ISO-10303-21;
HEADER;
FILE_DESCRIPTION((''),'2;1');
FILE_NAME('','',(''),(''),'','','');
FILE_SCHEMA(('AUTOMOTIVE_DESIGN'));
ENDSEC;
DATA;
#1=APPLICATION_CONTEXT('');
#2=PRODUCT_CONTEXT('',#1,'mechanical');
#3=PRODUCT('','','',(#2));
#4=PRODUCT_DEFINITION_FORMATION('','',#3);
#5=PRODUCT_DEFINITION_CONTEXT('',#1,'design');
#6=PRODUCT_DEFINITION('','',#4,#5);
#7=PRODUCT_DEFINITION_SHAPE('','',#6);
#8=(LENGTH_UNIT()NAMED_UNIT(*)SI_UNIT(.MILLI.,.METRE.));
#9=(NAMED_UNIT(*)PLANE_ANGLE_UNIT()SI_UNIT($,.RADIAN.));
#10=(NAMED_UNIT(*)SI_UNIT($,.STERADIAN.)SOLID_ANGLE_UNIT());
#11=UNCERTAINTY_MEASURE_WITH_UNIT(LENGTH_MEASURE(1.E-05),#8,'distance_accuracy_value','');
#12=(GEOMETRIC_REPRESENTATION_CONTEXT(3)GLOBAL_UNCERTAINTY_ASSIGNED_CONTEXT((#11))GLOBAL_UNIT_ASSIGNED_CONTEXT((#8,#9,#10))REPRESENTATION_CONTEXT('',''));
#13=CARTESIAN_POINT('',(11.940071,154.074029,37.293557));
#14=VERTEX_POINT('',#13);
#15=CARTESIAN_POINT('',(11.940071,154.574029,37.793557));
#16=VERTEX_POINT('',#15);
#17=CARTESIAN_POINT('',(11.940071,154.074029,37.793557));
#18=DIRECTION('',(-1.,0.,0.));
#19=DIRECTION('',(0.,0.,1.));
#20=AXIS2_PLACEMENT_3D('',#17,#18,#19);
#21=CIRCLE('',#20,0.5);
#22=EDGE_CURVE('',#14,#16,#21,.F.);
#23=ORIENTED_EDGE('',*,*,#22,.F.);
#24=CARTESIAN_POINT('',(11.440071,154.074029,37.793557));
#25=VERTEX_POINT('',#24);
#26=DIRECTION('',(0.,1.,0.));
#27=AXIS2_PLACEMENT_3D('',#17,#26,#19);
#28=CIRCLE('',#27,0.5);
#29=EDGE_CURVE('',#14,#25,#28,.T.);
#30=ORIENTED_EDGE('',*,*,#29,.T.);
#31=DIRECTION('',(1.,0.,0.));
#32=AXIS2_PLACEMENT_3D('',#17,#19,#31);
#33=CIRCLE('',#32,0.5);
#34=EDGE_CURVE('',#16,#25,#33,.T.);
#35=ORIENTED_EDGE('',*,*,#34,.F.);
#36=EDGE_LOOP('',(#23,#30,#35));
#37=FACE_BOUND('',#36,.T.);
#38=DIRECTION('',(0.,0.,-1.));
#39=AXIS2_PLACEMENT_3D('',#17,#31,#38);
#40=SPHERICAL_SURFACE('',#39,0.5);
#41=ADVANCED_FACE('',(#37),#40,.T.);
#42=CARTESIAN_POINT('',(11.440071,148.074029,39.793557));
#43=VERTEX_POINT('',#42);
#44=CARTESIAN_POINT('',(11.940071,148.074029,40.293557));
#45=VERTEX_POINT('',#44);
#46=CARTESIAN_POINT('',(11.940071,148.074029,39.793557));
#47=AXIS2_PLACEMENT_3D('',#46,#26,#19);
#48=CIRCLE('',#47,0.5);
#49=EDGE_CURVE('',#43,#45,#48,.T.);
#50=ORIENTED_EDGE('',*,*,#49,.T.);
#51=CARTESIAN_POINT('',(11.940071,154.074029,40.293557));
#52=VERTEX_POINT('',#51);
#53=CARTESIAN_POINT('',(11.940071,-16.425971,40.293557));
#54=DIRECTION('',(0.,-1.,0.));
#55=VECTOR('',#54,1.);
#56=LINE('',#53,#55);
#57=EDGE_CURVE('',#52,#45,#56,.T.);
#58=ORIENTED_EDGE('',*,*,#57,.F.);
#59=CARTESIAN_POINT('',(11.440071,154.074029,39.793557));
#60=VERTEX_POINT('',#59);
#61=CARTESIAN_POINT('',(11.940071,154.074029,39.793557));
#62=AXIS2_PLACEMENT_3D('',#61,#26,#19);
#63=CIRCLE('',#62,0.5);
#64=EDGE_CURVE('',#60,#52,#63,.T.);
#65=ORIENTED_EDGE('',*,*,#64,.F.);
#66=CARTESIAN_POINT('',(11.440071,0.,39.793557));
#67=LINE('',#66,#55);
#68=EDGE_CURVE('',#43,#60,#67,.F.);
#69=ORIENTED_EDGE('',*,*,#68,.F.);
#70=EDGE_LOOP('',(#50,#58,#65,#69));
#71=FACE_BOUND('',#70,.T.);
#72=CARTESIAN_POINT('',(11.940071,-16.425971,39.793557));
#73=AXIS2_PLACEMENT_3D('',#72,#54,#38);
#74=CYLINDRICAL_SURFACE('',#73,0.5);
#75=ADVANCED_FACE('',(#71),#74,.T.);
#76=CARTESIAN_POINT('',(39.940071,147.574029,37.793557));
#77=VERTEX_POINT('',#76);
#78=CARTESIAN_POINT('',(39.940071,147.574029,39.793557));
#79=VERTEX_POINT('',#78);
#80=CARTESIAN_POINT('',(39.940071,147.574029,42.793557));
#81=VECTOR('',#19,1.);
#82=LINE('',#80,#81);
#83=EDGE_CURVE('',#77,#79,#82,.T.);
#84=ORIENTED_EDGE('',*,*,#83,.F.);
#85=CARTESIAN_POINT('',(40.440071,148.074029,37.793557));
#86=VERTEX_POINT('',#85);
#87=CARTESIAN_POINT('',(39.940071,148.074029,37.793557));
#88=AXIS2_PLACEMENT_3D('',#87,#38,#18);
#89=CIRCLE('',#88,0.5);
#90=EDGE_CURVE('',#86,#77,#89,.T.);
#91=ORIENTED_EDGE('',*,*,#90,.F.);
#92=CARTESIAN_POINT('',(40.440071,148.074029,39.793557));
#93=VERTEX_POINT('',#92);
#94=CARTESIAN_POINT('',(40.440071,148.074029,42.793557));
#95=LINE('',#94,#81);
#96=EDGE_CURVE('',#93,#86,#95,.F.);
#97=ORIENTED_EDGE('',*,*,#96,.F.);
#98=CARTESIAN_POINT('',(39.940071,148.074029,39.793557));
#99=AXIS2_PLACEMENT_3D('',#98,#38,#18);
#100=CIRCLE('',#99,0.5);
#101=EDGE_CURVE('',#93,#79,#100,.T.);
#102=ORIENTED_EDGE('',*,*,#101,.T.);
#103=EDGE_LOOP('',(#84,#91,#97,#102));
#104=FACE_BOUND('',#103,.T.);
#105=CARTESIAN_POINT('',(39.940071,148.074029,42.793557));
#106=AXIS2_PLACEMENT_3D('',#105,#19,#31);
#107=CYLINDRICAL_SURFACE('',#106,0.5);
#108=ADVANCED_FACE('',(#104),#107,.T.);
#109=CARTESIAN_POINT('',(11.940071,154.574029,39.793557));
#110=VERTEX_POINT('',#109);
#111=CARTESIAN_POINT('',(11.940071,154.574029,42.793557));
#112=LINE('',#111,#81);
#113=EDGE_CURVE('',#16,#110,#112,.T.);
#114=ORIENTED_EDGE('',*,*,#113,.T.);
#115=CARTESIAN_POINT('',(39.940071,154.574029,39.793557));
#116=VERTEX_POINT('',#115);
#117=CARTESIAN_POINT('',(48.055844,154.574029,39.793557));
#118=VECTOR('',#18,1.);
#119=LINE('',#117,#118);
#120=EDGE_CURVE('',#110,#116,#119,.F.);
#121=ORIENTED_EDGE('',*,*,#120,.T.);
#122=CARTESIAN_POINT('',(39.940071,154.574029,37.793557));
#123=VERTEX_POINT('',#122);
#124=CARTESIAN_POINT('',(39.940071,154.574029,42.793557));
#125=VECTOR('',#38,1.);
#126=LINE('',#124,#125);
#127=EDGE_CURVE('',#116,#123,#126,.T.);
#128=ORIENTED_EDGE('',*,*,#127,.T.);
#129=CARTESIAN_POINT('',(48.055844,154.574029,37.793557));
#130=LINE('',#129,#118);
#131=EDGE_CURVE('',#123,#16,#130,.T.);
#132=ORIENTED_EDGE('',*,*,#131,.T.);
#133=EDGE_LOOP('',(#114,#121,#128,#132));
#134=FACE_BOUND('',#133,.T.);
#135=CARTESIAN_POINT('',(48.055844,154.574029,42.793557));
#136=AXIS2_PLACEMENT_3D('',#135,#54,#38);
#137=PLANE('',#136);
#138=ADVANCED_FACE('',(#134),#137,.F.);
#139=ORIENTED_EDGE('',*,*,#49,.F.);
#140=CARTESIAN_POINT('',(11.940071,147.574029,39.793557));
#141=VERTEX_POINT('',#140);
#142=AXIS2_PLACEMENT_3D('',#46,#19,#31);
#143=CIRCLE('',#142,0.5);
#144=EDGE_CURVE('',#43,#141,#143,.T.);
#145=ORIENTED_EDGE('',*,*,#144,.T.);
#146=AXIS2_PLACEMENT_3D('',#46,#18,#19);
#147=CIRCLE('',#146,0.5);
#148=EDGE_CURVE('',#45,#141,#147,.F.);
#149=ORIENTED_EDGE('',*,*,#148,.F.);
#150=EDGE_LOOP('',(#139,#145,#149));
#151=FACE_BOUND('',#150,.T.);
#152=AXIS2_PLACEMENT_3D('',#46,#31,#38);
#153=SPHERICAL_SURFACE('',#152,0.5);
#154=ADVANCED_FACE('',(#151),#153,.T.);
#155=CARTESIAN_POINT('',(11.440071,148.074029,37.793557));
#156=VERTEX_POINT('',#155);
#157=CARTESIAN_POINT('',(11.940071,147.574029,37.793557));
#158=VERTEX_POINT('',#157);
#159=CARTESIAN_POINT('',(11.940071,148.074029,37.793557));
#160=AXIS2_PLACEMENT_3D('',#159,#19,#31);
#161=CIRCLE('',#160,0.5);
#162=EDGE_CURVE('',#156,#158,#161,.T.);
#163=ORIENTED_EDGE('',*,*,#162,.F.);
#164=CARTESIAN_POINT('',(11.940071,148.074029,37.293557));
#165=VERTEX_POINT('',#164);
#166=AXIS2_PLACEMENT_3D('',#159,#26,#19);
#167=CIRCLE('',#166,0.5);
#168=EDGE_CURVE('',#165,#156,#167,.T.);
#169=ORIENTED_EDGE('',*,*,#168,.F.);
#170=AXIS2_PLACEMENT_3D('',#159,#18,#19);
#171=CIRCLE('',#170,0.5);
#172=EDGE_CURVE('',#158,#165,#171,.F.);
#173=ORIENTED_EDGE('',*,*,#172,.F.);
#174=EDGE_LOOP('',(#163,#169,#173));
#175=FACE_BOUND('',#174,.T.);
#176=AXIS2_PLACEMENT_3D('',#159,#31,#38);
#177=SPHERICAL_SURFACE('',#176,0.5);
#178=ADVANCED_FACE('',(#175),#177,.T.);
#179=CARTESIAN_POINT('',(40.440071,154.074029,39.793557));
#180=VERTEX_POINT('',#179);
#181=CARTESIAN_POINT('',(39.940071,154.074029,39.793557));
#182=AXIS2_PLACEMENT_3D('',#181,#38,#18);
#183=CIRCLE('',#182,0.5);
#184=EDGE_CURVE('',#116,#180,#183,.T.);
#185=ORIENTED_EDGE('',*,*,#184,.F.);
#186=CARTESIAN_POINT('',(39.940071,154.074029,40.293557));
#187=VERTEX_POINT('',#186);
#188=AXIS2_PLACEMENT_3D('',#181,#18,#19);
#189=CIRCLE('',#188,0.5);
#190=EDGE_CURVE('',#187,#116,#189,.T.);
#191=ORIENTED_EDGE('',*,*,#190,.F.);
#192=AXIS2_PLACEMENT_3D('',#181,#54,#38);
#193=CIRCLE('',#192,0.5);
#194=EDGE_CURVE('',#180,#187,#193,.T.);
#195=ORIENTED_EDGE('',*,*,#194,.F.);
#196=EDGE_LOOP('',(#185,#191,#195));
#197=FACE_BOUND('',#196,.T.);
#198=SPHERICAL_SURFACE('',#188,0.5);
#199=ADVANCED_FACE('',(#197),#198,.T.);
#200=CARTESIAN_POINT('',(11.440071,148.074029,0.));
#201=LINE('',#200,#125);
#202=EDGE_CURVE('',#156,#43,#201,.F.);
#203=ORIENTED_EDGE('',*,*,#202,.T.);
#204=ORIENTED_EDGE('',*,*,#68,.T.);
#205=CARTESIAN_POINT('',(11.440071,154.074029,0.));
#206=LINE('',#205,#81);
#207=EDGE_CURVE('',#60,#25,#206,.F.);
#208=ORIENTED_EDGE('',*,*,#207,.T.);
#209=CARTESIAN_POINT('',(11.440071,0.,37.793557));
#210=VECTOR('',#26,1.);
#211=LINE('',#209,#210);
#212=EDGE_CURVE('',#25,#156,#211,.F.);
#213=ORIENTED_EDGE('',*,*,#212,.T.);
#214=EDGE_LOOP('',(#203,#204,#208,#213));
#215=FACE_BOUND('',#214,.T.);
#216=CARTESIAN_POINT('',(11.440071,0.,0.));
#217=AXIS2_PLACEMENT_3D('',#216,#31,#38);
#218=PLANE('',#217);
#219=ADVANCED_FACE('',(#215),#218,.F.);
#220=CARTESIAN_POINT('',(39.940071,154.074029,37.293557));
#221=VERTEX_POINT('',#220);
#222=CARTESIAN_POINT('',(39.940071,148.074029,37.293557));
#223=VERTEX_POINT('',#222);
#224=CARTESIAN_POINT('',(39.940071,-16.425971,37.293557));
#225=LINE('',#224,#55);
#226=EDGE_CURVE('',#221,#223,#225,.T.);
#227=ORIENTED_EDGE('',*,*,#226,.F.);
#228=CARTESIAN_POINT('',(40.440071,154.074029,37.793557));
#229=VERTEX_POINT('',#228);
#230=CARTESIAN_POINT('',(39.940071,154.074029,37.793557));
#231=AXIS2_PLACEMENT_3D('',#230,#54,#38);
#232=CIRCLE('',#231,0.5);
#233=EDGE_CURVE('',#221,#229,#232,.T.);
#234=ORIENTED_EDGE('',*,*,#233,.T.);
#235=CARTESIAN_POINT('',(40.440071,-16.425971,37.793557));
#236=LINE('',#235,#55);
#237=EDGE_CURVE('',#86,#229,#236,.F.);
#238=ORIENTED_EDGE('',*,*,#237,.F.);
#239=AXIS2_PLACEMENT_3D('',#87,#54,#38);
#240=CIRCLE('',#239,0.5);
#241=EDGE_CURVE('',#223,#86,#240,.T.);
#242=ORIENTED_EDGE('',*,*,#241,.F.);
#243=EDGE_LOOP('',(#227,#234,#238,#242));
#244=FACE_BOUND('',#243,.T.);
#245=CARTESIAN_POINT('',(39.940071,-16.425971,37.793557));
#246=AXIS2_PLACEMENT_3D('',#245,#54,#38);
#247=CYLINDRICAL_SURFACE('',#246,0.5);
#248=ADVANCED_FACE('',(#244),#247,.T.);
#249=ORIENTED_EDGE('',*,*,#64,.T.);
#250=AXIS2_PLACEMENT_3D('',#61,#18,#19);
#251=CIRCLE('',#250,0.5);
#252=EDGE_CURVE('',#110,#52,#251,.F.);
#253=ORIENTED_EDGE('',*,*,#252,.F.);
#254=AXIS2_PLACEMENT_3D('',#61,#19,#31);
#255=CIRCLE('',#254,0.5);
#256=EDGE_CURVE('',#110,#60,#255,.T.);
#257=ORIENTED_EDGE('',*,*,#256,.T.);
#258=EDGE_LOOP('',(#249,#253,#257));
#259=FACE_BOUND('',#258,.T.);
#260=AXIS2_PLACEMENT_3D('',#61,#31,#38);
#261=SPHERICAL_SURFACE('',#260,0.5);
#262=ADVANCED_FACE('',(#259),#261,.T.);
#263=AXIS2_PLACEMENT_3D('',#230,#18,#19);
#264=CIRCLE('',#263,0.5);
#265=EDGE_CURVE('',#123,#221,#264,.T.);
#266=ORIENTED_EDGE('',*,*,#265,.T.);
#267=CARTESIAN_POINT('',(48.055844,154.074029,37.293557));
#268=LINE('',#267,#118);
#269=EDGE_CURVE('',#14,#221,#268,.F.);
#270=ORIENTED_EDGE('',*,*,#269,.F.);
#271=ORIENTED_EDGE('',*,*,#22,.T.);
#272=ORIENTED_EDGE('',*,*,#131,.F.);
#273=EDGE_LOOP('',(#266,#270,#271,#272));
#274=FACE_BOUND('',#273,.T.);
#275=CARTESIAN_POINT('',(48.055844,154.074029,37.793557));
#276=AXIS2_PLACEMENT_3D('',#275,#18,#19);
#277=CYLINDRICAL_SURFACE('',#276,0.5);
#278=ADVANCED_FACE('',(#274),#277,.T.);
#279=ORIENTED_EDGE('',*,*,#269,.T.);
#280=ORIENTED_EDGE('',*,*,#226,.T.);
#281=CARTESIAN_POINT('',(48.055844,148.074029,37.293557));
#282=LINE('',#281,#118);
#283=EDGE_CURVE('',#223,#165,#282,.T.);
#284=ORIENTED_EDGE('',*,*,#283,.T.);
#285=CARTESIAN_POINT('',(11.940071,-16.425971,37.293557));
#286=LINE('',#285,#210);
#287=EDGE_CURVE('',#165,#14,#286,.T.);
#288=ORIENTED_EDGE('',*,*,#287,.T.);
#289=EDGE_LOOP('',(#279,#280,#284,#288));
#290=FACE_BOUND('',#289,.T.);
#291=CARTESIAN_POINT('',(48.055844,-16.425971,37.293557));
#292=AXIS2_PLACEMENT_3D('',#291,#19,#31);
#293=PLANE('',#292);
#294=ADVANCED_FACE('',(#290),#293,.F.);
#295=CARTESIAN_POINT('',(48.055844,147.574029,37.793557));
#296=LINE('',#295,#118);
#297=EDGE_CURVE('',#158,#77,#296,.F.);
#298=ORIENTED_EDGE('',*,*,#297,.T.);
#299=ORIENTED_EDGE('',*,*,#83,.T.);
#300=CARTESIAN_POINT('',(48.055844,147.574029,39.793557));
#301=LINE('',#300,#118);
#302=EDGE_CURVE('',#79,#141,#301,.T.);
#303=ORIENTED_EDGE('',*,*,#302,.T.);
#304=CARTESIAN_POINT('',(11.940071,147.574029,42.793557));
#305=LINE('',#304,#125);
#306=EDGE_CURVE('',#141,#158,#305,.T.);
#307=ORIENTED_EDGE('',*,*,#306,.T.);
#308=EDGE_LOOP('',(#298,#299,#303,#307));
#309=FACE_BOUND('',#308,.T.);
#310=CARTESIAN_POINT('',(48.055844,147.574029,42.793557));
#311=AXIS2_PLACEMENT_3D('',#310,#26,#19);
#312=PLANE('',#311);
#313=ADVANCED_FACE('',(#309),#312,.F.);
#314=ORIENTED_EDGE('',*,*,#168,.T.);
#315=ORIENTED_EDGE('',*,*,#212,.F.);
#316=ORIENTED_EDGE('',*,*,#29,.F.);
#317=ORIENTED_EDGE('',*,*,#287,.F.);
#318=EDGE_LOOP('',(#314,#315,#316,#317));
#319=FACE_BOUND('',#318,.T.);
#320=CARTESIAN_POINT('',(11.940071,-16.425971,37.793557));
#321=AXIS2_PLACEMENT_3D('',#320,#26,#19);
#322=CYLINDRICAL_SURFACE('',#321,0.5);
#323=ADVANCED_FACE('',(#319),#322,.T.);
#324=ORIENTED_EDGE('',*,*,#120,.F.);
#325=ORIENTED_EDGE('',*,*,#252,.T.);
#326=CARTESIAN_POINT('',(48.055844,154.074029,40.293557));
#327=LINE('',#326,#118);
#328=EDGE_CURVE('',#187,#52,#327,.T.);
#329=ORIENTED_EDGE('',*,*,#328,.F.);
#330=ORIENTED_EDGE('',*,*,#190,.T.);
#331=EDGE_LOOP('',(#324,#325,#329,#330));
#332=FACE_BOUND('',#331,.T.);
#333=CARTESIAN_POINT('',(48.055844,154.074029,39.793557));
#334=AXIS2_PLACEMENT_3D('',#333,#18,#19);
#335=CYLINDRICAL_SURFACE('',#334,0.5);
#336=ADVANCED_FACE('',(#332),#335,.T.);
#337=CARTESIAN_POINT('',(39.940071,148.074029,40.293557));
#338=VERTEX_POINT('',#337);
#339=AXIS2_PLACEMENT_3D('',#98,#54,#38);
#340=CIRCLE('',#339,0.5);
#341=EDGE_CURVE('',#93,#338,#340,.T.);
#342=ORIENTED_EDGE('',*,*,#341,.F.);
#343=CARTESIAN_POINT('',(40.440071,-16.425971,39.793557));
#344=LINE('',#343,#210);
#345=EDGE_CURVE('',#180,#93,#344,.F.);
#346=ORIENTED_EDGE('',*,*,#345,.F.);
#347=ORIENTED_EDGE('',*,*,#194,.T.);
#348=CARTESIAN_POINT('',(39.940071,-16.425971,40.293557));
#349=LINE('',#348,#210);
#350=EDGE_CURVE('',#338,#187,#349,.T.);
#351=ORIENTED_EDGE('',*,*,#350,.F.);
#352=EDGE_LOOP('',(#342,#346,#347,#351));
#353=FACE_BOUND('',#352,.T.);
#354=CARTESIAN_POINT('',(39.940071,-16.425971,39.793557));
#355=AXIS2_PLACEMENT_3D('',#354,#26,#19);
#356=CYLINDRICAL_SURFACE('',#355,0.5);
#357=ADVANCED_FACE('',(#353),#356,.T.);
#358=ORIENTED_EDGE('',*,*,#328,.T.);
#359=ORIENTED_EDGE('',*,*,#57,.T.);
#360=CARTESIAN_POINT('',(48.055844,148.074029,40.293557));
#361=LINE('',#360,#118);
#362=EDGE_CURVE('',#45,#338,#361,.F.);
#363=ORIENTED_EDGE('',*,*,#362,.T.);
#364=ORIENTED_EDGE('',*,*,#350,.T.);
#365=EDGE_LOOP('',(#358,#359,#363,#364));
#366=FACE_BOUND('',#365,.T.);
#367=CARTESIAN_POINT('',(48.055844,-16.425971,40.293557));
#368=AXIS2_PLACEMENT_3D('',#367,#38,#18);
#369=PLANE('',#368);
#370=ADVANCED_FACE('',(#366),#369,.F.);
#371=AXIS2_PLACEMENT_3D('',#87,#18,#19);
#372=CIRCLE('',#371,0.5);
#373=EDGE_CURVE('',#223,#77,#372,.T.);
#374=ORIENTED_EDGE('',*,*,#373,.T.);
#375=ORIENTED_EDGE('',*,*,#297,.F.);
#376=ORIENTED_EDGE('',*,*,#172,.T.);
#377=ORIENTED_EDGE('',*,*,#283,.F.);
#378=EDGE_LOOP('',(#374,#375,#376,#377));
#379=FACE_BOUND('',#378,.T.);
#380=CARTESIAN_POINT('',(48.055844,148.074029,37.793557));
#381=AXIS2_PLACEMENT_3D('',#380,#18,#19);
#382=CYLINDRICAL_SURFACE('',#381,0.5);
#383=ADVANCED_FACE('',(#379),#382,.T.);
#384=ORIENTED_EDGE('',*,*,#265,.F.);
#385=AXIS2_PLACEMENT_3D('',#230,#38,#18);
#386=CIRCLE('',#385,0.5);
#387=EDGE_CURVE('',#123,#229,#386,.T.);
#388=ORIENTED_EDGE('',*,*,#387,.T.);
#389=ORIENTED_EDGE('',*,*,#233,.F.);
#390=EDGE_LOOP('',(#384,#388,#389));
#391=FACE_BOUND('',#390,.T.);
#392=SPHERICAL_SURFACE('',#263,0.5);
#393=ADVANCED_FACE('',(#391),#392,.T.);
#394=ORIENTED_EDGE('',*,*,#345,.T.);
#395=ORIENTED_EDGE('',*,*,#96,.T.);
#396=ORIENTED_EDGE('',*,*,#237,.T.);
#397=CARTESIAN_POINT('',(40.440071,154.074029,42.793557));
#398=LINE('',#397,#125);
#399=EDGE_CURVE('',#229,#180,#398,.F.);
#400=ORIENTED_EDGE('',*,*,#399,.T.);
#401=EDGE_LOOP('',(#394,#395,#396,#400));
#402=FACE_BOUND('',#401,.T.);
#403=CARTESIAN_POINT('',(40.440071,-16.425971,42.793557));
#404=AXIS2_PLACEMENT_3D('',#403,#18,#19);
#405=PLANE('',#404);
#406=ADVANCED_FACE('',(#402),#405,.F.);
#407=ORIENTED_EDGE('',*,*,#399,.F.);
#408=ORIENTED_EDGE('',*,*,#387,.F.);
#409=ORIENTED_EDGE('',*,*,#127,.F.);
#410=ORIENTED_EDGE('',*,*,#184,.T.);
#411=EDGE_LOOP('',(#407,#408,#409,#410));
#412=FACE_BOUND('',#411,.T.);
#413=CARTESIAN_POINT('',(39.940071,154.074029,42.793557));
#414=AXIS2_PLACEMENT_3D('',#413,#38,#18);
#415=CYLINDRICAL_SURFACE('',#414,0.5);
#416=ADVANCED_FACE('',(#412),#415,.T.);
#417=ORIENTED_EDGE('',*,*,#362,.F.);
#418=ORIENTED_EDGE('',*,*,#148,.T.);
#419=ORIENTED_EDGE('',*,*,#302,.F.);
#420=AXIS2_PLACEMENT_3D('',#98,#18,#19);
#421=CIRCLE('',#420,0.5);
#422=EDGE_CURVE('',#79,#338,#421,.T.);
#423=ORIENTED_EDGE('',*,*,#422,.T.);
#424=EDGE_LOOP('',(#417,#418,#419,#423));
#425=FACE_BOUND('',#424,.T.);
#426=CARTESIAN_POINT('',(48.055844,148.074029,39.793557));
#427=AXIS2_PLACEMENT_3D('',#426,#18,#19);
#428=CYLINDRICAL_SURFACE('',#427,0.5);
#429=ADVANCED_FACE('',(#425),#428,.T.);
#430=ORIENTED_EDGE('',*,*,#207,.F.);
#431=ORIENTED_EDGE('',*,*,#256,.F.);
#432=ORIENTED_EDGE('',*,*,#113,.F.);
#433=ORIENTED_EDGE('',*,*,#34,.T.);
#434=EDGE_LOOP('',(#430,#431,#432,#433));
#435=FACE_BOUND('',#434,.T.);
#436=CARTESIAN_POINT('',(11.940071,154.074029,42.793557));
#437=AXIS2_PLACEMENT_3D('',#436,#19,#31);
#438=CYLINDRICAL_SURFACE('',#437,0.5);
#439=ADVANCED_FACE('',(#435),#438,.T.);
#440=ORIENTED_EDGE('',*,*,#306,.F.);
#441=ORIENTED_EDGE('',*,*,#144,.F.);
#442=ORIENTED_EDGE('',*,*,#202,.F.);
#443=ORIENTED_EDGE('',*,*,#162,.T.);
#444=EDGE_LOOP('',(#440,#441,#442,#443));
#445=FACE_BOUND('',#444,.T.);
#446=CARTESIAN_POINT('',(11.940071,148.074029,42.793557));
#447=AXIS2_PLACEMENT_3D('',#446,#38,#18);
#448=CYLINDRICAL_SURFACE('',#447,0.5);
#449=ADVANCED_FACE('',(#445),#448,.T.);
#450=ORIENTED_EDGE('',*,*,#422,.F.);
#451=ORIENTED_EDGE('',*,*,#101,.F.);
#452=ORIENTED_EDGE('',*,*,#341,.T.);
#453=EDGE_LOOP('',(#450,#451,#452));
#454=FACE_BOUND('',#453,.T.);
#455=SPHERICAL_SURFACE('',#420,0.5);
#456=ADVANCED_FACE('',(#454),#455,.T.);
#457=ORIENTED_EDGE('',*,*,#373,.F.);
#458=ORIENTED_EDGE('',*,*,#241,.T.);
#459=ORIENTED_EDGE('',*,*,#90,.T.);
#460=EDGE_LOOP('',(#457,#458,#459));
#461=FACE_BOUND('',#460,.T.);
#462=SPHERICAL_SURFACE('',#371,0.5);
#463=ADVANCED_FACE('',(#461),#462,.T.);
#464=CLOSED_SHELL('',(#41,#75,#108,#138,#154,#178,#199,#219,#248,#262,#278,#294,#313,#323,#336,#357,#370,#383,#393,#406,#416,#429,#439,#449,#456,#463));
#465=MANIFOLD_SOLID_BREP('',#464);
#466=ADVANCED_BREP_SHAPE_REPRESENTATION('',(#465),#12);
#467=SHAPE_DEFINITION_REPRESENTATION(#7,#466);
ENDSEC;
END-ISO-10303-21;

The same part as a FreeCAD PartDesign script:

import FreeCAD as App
import Part
import Sketcher
from FreeCAD import Vector
Q = App.Units.Quantity


def edges_at(feature, points):
    """Names of the edges that pass closest to the given points."""
    edges = feature.Shape.Edges
    near = lambda p: min(range(len(edges)), key=lambda i: edges[i].distToShape(Part.Vertex(*p))[0])
    return sorted({f"Edge{near(p) + 1}" for p in points})

doc = App.newDocument("Part")
params = doc.addObject("Spreadsheet::Sheet", "Params")
for row, (alias, value) in enumerate([
    ("sketch1_width", "7 mm"),
    ("sketch1_height", "3 mm"),
    ("pad1_length", "29 mm"),
    ("fillet_radius", "0.5 mm"),
    ("fillet2_radius", "0.5 mm"),
], start=1):
    params.set(f"A{row}", alias)
    params.set(f"B{row}", "=" + value)
    params.setAlias(f"B{row}", alias)

body = doc.addObject("PartDesign::Body", "Body")

# Sketch on YZ plane
sketch1 = doc.addObject("Sketcher::SketchObject", "Sketch")
body.addObject(sketch1)
sketch1.AttachmentSupport = (doc.YZ_Plane, [""])
sketch1.MapMode = "FlatFace"
sketch1.AttachmentOffset = App.Placement(Vector(0, 0, 11.440071), App.Rotation())
sketch1.addGeometry(Part.LineSegment(Vector(154.574029, 40.293557, 0), Vector(147.574029, 40.293557, 0)), False)
sketch1.addGeometry(Part.LineSegment(Vector(147.574029, 40.293557, 0), Vector(147.574029, 37.293557, 0)), False)
sketch1.addGeometry(Part.LineSegment(Vector(147.574029, 37.293557, 0), Vector(154.574029, 37.293557, 0)), False)
sketch1.addGeometry(Part.LineSegment(Vector(154.574029, 37.293557, 0), Vector(154.574029, 40.293557, 0)), False)
sketch1.addConstraint(Sketcher.Constraint("Coincident", 0, 2, 1, 1))
sketch1.addConstraint(Sketcher.Constraint("Coincident", 1, 2, 2, 1))
sketch1.addConstraint(Sketcher.Constraint("Coincident", 2, 2, 3, 1))
sketch1.addConstraint(Sketcher.Constraint("Coincident", 3, 2, 0, 1))
sketch1.addConstraint(Sketcher.Constraint("Horizontal", 0))
sketch1.addConstraint(Sketcher.Constraint("Vertical", 1))
sketch1.addConstraint(Sketcher.Constraint("Horizontal", 2))
sketch1.addConstraint(Sketcher.Constraint("Vertical", 3))
sketch1.addConstraint(Sketcher.Constraint("DistanceX", 0, 2, 0, 1, Q("7 mm")))
sketch1.addConstraint(Sketcher.Constraint("DistanceY", 1, 2, 1, 1, Q("3 mm")))
sketch1.addConstraint(Sketcher.Constraint("DistanceX", -1, 1, 0, 2, Q("147.574029 mm")))
sketch1.addConstraint(Sketcher.Constraint("DistanceY", -1, 1, 0, 2, Q("40.293557 mm")))
sketch1.setExpression("Constraints[8]", "Params.sketch1_width")
sketch1.setExpression("Constraints[9]", "Params.sketch1_height")
pad1 = doc.addObject("PartDesign::Pad", "Pad")
body.addObject(pad1)
pad1.Profile = sketch1
pad1.setExpression("Length", "Params.pad1_length")
doc.recompute()

fillet = doc.addObject("PartDesign::Fillet", "Fillet")
body.addObject(fillet)
fillet.Base = (pad1, edges_at(pad1, [
    (25.94, 154.574, 40.294),
    (25.94, 154.574, 37.294),
    (25.94, 147.574, 37.294),
    (25.94, 147.574, 40.294),
]))
fillet.setExpression("Radius", "Params.fillet_radius")
doc.recompute()

fillet2 = doc.addObject("PartDesign::Fillet", "Fillet001")
body.addObject(fillet2)
fillet2.Base = (fillet, edges_at(fillet, [
    (40.44, 154.574, 38.794),
    (11.44, 154.574, 38.794),
    (11.44, 151.074, 40.294),
    (11.44, 151.074, 37.294),
    (11.44, 147.574, 38.794),
    (11.44, 147.72, 40.147),
    (11.44, 147.72, 37.44),
    (11.44, 154.428, 40.147),
    (11.44, 154.428, 37.44),
    (40.44, 151.074, 37.294),
    (40.44, 147.574, 38.794),
    (40.44, 151.074, 40.294),
    (40.44, 147.72, 40.147),
    (40.44, 147.72, 37.44),
    (40.44, 154.428, 40.147),
    (40.44, 154.428, 37.44),
]))
fillet2.setExpression("Radius", "Params.fillet2_radius")

doc.recompute()
